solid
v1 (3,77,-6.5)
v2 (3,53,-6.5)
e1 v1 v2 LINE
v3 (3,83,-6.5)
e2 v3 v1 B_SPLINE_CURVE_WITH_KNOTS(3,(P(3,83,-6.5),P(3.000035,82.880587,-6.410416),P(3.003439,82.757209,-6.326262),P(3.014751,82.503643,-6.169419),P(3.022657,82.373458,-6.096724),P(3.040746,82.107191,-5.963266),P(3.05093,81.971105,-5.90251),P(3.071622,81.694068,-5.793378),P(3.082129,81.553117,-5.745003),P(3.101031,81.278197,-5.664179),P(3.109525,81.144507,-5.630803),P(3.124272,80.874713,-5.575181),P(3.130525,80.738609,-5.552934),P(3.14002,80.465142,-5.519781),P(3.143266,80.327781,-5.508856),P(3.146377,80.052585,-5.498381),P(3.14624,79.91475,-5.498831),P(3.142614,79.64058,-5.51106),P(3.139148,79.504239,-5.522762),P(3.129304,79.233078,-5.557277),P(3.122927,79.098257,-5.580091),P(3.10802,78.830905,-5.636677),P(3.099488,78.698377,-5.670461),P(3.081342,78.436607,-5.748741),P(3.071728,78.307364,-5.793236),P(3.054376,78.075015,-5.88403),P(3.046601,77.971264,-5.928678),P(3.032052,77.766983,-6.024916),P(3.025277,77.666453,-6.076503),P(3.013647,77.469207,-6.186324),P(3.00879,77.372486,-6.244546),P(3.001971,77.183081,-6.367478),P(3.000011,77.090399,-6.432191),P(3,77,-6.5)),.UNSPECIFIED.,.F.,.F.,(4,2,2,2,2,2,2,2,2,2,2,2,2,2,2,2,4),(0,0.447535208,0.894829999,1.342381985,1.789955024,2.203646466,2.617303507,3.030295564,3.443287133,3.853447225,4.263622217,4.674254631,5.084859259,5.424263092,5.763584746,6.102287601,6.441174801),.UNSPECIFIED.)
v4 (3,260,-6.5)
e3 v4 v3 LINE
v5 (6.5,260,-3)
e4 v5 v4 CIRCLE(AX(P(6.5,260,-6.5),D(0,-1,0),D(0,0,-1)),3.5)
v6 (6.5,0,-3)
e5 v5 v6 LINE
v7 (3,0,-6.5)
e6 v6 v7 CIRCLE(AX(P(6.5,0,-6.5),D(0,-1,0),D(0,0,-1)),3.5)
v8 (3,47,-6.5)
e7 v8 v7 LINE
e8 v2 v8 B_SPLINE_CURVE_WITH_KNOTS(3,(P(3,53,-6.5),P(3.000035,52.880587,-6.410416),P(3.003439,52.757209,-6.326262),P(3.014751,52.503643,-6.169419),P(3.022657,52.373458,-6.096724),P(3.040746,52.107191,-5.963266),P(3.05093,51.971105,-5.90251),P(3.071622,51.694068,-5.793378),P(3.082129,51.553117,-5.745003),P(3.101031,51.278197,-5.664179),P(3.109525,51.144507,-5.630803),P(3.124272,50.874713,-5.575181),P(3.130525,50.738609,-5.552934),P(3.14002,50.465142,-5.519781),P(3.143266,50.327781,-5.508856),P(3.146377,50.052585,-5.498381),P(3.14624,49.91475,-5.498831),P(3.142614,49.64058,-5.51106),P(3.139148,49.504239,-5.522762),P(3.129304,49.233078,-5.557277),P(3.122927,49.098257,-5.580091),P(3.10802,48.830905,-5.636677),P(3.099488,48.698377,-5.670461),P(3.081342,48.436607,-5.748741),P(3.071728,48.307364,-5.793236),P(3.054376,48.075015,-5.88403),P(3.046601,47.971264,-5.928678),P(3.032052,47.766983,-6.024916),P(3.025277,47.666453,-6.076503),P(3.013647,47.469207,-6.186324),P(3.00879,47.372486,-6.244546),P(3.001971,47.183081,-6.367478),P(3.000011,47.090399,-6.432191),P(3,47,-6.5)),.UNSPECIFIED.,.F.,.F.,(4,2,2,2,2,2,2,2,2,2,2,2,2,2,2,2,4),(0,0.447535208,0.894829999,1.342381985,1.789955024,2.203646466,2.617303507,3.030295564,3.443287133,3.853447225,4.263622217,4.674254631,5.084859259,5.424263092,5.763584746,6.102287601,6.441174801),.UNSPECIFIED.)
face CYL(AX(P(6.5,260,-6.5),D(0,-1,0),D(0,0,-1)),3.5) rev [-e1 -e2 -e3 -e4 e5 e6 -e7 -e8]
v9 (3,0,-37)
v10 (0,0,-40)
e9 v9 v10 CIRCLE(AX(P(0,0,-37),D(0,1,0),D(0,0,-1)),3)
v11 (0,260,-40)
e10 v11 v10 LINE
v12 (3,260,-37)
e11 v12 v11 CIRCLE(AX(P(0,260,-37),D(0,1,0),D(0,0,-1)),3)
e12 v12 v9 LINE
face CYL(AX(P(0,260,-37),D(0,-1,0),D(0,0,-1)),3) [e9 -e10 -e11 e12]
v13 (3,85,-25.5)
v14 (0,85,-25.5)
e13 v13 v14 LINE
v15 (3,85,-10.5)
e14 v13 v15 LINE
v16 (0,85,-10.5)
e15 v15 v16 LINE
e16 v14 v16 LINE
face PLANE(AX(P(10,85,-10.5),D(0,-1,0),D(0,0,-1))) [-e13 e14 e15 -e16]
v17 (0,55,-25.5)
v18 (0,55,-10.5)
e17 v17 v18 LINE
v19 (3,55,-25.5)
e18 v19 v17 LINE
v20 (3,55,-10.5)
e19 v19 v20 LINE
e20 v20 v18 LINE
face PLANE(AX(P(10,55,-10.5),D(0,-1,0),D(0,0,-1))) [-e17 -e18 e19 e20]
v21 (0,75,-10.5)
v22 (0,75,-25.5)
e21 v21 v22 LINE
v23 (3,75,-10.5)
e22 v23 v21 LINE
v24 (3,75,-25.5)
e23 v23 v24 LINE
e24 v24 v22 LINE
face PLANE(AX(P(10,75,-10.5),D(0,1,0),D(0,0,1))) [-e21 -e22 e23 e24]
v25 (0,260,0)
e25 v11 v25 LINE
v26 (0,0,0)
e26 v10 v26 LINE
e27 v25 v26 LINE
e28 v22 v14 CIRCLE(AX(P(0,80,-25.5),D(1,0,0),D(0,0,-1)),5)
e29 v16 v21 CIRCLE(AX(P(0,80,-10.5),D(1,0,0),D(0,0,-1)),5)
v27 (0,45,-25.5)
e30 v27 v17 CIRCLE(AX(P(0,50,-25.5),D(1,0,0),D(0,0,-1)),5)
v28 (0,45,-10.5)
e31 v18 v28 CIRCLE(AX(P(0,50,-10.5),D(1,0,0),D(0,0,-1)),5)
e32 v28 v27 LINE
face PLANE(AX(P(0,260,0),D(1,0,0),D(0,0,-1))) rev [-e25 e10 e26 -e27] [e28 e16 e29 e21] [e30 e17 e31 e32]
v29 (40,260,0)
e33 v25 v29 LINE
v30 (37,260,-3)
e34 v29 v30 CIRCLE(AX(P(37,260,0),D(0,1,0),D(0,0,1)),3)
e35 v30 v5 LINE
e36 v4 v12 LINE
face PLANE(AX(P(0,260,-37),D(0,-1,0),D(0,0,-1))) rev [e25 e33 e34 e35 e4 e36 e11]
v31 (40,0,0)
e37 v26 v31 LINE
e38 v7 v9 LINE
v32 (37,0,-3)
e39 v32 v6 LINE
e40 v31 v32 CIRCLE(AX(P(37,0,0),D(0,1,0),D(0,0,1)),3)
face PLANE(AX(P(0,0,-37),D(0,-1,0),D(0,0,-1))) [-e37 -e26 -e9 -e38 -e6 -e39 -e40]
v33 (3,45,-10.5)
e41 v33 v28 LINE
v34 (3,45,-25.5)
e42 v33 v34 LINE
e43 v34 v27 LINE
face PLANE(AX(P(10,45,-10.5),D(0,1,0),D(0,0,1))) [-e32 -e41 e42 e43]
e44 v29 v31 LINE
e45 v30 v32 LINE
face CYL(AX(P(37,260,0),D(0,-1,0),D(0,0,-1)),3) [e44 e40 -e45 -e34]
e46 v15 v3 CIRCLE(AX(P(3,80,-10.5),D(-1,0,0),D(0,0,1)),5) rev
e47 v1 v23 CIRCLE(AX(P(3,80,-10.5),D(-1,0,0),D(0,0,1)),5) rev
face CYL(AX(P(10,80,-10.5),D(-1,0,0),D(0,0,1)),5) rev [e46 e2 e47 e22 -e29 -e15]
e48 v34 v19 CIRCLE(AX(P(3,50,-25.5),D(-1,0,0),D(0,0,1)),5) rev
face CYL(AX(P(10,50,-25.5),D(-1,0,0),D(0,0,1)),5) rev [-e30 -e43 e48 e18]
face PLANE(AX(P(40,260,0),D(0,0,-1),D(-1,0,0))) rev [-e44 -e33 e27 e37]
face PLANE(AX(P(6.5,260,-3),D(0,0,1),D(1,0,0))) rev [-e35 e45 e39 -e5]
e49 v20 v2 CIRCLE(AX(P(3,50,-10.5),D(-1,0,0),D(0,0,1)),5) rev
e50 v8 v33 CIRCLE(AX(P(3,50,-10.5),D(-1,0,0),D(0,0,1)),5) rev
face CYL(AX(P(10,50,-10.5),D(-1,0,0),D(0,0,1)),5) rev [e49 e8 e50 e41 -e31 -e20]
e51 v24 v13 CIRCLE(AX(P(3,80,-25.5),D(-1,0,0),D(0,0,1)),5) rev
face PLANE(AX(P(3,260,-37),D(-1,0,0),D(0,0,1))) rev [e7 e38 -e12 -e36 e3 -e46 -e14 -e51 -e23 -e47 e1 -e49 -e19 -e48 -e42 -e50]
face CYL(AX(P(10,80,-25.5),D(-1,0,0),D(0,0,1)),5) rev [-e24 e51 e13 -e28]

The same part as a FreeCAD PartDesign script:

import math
import FreeCAD as App
import Part
import Sketcher
Q = App.Units.Quantity

doc = App.newDocument("Part")
body = doc.addObject("PartDesign::Body", "Body")

# Sketch on XZ plane
sketch1 = body.newObject("Sketcher::SketchObject", "Sketch")
sketch1.AttachmentSupport = (doc.getObject("XZ_Plane"), [""])
sketch1.MapMode = "FlatFace"
sketch1.addGeometry([
    Part.LineSegment(App.Vector(0, -40, 0), App.Vector(0, 0, 0)),  # 0
    Part.LineSegment(App.Vector(0, 0, 0), App.Vector(40, 0, 0)),  # 1
    Part.ArcOfCircle(Part.Circle(App.Vector(37, 0, 0), App.Vector(0, 0, 1), 3), math.radians(-90), math.radians(0)),  # 2
    Part.LineSegment(App.Vector(37, -3, 0), App.Vector(6.5, -3, 0)),  # 3
    Part.ArcOfCircle(Part.Circle(App.Vector(6.5, -6.5, 0), App.Vector(0, 0, 1), 3.5), math.radians(90), math.radians(180)),  # 4
    Part.LineSegment(App.Vector(3, -6.5, 0), App.Vector(3, -37, 0)),  # 5
    Part.ArcOfCircle(Part.Circle(App.Vector(0, -37, 0), App.Vector(0, 0, 1), 3), math.radians(-90), math.radians(0)),  # 6
], False)
sketch1.addConstraint([
    Sketcher.Constraint("Coincident", 0, 2, 1, 1),
    Sketcher.Constraint("Coincident", 1, 2, 2, 2),
    Sketcher.Constraint("Tangent", 2, 1, 3, 1),
    Sketcher.Constraint("Tangent", 3, 2, 4, 1),
    Sketcher.Constraint("Tangent", 4, 2, 5, 1),
    Sketcher.Constraint("Tangent", 5, 2, 6, 2),
    Sketcher.Constraint("Coincident", 6, 1, 0, 1),
    Sketcher.Constraint("Vertical", 0),
    Sketcher.Constraint("Horizontal", 1),
    Sketcher.Constraint("Horizontal", 3),
    Sketcher.Constraint("Vertical", 5),
    Sketcher.Constraint("Coincident", 0, 2, -1, 1),
    Sketcher.Constraint("Equal", 2, 6),
    Sketcher.Constraint("PointOnObject", 2, 3, -1),
    Sketcher.Constraint("PointOnObject", 6, 3, -2),
    Sketcher.Constraint("Equal", 1, 0),
    Sketcher.Constraint("Radius", 2, Q("3 mm")),
    Sketcher.Constraint("Radius", 4, Q("3.5 mm")),
    Sketcher.Constraint("DistanceX", 1, 1, 1, 2, Q("40 mm")),
])
pad1 = body.newObject("PartDesign::Pad", "Pad")
pad1.Profile = sketch1
pad1.Length = 260
pad1.Reversed = True

# Sketch on YZ plane
sketch2 = body.newObject("Sketcher::SketchObject", "Sketch001")
sketch2.AttachmentSupport = (doc.getObject("YZ_Plane"), [""])
sketch2.MapMode = "FlatFace"
sketch2.addGeometry([
    Part.LineSegment(App.Vector(55, -25.5, 0), App.Vector(55, -10.5, 0)),  # 0
    Part.ArcOfCircle(Part.Circle(App.Vector(50, -10.5, 0), App.Vector(0, 0, 1), 5), math.radians(0), math.radians(180)),  # 1
    Part.LineSegment(App.Vector(45, -10.5, 0), App.Vector(45, -25.5, 0)),  # 2
    Part.ArcOfCircle(Part.Circle(App.Vector(50, -25.5, 0), App.Vector(0, 0, 1), 5), math.radians(180), math.radians(360)),  # 3
    Part.LineSegment(App.Vector(85, -25.5, 0), App.Vector(85, -10.5, 0)),  # 4
    Part.ArcOfCircle(Part.Circle(App.Vector(80, -10.5, 0), App.Vector(0, 0, 1), 5), math.radians(0), math.radians(180)),  # 5
    Part.LineSegment(App.Vector(75, -10.5, 0), App.Vector(75, -25.5, 0)),  # 6
    Part.ArcOfCircle(Part.Circle(App.Vector(80, -25.5, 0), App.Vector(0, 0, 1), 5), math.radians(180), math.radians(360)),  # 7
], False)
sketch2.addConstraint([
    Sketcher.Constraint("Tangent", 0, 2, 1, 1),
    Sketcher.Constraint("Tangent", 1, 2, 2, 1),
    Sketcher.Constraint("Tangent", 2, 2, 3, 1),
    Sketcher.Constraint("Tangent", 3, 2, 0, 1),
    Sketcher.Constraint("Tangent", 4, 2, 5, 1),
    Sketcher.Constraint("Tangent", 5, 2, 6, 1),
    Sketcher.Constraint("Tangent", 6, 2, 7, 1),
    Sketcher.Constraint("Tangent", 7, 2, 4, 1),
    Sketcher.Constraint("Vertical", 0),
    Sketcher.Constraint("Vertical", 2),
    Sketcher.Constraint("Vertical", 4),
    Sketcher.Constraint("Vertical", 6),
    Sketcher.Constraint("Equal", 3, 5),
    Sketcher.Constraint("Horizontal", 1, 3, 5, 3),
    Sketcher.Constraint("Horizontal", 3, 3, 7, 3),
    Sketcher.Constraint("Radius", 1, Q("5 mm")),
    Sketcher.Constraint("DistanceY", 0, 1, 0, 2, Q("15 mm")),
    Sketcher.Constraint("DistanceX", -1, 1, 1, 3, Q("50 mm")),
    Sketcher.Constraint("DistanceX", -1, 1, 5, 3, Q("80 mm")),
    Sketcher.Constraint("DistanceY", 1, 3, -1, 1, Q("10.5 mm")),
])
pocket1 = body.newObject("PartDesign::Pocket", "Pocket")
pocket1.Profile = sketch2
pocket1.Length = 10
pocket1.Reversed = True

doc.recompute()
